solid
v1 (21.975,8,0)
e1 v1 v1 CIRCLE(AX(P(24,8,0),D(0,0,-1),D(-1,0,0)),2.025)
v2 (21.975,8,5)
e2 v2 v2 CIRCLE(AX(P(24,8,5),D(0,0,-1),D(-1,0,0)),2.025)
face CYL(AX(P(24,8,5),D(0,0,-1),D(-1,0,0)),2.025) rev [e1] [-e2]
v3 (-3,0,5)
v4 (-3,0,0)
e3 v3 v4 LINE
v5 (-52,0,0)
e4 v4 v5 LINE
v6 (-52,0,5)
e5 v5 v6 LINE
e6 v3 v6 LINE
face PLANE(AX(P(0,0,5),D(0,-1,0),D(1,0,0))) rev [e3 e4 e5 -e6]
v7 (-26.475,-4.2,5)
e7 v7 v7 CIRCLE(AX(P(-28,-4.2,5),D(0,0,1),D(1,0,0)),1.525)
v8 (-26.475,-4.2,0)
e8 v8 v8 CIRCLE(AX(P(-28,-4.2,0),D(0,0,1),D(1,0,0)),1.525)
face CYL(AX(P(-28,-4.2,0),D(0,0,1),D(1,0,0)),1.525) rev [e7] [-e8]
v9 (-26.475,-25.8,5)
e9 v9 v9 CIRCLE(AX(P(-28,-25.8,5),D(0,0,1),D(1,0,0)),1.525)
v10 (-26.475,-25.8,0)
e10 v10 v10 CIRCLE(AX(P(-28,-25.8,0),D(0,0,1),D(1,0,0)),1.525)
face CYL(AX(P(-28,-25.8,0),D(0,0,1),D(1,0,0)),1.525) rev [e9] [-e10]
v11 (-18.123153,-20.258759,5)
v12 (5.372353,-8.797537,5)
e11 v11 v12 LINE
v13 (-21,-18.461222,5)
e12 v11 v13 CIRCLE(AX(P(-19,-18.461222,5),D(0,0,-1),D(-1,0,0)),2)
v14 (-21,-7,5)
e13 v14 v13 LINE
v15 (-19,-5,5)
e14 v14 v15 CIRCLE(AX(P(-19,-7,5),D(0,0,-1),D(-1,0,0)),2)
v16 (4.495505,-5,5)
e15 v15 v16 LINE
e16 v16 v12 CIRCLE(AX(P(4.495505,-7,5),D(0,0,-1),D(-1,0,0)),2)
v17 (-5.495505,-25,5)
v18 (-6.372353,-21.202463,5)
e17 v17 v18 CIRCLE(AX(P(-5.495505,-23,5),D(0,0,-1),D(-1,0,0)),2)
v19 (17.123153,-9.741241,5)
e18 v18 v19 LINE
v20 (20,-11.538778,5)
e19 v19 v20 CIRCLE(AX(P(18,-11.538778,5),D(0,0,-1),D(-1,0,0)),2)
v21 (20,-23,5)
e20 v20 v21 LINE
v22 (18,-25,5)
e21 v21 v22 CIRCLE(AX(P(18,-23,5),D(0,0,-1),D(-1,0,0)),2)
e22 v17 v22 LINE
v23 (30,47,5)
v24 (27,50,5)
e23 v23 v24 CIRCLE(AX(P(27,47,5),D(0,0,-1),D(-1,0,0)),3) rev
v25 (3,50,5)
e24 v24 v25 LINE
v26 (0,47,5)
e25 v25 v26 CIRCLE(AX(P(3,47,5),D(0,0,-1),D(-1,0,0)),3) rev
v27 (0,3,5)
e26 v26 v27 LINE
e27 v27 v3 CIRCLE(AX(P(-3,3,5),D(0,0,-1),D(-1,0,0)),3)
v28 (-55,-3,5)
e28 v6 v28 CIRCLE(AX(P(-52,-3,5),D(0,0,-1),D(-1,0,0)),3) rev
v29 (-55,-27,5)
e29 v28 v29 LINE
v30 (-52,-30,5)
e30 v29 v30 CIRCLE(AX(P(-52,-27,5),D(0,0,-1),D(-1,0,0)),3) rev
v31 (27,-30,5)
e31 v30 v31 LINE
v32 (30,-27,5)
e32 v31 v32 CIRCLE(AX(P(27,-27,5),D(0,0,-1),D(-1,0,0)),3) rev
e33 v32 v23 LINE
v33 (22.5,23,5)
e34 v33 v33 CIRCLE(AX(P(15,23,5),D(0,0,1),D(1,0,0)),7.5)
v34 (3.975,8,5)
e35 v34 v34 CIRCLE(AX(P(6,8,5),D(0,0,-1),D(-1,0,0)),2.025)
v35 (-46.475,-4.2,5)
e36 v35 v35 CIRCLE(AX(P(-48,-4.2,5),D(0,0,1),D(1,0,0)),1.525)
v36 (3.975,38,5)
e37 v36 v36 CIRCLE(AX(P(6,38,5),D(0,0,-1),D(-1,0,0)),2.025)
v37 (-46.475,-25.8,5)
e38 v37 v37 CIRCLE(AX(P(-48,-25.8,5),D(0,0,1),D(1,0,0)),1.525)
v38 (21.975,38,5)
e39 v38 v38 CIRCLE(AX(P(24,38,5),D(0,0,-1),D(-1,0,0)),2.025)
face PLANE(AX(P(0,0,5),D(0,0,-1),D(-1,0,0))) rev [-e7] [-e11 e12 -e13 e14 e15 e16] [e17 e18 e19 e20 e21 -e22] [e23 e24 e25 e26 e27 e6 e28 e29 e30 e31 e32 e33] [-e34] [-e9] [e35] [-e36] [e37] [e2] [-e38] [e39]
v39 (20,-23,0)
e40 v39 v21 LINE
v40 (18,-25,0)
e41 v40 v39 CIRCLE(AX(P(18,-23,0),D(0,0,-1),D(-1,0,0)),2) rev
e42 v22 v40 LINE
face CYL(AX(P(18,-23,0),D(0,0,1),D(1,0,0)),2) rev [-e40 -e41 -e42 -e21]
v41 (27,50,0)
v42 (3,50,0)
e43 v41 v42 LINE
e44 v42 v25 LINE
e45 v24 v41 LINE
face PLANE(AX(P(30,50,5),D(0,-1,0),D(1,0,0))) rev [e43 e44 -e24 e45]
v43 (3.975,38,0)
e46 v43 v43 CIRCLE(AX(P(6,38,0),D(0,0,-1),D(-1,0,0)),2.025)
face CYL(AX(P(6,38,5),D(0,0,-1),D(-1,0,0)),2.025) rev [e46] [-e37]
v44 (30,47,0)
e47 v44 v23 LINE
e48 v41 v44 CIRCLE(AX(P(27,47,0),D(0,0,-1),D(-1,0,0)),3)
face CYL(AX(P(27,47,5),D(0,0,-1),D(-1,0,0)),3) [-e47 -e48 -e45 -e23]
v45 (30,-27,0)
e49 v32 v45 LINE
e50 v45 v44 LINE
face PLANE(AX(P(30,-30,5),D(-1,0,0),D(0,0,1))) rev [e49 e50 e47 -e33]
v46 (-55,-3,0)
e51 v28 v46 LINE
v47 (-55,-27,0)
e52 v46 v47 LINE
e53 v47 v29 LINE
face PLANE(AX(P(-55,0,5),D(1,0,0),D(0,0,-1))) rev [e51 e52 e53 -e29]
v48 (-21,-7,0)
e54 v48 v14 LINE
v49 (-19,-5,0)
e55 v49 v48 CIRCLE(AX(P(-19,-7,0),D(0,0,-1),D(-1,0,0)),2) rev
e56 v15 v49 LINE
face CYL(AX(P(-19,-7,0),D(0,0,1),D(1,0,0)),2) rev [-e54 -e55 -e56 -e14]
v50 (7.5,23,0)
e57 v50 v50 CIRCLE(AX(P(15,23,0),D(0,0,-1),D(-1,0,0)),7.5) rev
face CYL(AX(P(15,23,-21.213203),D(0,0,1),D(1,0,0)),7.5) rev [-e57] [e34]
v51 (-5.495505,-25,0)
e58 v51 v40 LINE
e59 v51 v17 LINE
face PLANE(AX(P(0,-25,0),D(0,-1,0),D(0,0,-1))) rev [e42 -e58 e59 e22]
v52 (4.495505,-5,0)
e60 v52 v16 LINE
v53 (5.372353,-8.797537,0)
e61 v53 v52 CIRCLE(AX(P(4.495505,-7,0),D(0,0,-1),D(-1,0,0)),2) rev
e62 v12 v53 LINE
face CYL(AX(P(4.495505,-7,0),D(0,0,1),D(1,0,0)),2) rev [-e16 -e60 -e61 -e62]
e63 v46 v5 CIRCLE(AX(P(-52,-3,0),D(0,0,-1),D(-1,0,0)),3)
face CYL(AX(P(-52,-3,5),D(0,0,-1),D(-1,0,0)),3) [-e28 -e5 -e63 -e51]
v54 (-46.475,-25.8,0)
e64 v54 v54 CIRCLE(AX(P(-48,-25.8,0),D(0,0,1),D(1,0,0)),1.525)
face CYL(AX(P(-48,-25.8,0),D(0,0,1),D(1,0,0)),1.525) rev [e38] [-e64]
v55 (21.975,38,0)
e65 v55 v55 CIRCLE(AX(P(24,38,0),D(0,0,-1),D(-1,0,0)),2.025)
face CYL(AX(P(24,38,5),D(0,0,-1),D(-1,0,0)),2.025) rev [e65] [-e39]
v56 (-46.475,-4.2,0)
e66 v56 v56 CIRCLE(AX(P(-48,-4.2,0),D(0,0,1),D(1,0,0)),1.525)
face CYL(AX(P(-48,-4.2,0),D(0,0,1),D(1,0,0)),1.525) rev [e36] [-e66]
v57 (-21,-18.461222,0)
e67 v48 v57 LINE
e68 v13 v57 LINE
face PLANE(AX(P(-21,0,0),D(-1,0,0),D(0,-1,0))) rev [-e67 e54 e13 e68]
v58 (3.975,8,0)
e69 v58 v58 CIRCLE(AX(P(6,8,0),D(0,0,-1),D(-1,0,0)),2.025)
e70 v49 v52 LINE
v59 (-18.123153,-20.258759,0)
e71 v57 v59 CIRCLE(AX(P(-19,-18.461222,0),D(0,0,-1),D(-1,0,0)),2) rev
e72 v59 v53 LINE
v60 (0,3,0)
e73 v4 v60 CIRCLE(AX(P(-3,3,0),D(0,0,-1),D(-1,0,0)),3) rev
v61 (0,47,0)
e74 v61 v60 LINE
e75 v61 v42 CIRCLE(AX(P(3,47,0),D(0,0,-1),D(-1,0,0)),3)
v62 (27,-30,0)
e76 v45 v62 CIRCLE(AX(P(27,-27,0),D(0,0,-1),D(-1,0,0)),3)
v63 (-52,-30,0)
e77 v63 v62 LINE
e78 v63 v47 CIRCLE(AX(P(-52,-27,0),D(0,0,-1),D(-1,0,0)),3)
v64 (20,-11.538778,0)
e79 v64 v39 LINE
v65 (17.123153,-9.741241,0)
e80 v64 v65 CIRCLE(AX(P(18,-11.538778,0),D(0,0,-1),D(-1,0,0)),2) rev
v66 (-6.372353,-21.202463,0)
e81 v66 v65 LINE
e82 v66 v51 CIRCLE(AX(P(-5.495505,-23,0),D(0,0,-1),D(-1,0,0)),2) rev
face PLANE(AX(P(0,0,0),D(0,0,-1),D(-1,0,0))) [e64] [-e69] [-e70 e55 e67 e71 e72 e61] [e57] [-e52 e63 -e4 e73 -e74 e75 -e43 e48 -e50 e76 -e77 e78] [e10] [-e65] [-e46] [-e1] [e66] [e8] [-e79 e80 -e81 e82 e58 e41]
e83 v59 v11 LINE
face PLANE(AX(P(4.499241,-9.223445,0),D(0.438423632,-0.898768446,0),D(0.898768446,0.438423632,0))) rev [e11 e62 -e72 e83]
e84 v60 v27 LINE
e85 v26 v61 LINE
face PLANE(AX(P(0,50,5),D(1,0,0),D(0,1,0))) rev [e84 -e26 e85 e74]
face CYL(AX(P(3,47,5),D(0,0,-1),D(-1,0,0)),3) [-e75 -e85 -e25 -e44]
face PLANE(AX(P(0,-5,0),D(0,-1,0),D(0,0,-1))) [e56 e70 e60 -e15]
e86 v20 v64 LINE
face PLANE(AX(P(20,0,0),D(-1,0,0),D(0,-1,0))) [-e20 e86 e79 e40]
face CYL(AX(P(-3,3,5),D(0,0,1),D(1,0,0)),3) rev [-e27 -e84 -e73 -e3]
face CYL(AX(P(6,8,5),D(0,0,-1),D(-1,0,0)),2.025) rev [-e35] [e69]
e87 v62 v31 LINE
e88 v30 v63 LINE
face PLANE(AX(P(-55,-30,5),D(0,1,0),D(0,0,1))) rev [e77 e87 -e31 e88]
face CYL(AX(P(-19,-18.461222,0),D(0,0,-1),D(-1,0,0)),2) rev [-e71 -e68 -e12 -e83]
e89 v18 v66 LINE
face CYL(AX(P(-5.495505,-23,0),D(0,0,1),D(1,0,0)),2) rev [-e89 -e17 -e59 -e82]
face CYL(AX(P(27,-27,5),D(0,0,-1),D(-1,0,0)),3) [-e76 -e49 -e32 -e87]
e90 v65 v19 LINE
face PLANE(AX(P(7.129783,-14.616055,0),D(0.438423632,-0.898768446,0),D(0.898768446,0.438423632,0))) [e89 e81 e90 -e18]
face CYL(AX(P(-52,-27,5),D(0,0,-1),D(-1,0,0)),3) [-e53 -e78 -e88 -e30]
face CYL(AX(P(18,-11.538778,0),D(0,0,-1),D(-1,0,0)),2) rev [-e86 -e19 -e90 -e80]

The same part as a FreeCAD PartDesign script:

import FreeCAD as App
import Part
import Sketcher
Q = App.Units.Quantity


def edges_at(feature, points):
    """Names of the edges that pass closest to the given points."""
    edges = feature.Shape.Edges
    near = lambda p: min(range(len(edges)), key=lambda i: edges[i].distToShape(Part.Vertex(*p))[0])
    return sorted({f"Edge{near(p) + 1}" for p in points})

doc = App.newDocument("Part")
params = doc.addObject("Spreadsheet::Sheet", "Params")
for row, (alias, value) in enumerate([
    ("sketch1_width", "55 mm"),
    ("sketch1_width2", "85 mm"),
    ("sketch1_height", "80 mm"),
    ("pad1_length", "5 mm"),
    ("sketch2_diameter", "4.05 mm"),
    ("fillet_radius", "3 mm"),
    ("sketch3_diameter", "3.05 mm"),
    ("fillet2_radius", "2 mm"),
    ("sketch5_diameter", "15 mm"),
    ("pocket4_length", "5 mm"),
], start=1):
    params.set(f"A{row}", alias)
    params.set(f"B{row}", "=" + value)
    params.setAlias(f"B{row}", alias)

body = doc.addObject("PartDesign::Body", "Body")

# Sketch on XY plane
sketch1 = body.newObject("Sketcher::SketchObject", "Sketch")
sketch1.AttachmentSupport = (doc.getObject("XY_Plane"), [""])
sketch1.MapMode = "FlatFace"
sketch1.addGeometry([
    Part.LineSegment(App.Vector(0, 0, 0), App.Vector(-55, 0, 0)),  # 0
    Part.LineSegment(App.Vector(-55, 0, 0), App.Vector(-55, -30, 0)),  # 1
    Part.LineSegment(App.Vector(-55, -30, 0), App.Vector(30, -30, 0)),  # 2
    Part.LineSegment(App.Vector(30, -30, 0), App.Vector(30, 50, 0)),  # 3
    Part.LineSegment(App.Vector(30, 50, 0), App.Vector(0, 50, 0)),  # 4
    Part.LineSegment(App.Vector(0, 50, 0), App.Vector(0, 0, 0)),  # 5
], False)
sketch1.addConstraint([
    Sketcher.Constraint("Coincident", 0, 2, 1, 1),
    Sketcher.Constraint("Coincident", 1, 2, 2, 1),
    Sketcher.Constraint("Coincident", 2, 2, 3, 1),
    Sketcher.Constraint("Coincident", 3, 2, 4, 1),
    Sketcher.Constraint("Coincident", 4, 2, 5, 1),
    Sketcher.Constraint("Coincident", 5, 2, 0, 1),
    Sketcher.Constraint("Horizontal", 0),
    Sketcher.Constraint("Vertical", 1),
    Sketcher.Constraint("Horizontal", 2),
    Sketcher.Constraint("Vertical", 3),
    Sketcher.Constraint("Horizontal", 4),
    Sketcher.Constraint("Vertical", 5),
    Sketcher.Constraint("Coincident", 5, 2, -1, 1),
    Sketcher.Constraint("Equal", 4, 1),
    Sketcher.Constraint("DistanceX", 0, 2, 0, 1, Q("55 mm")),
    Sketcher.Constraint("DistanceX", 2, 1, 2, 2, Q("85 mm")),
    Sketcher.Constraint("DistanceY", 3, 1, 3, 2, Q("80 mm")),
])
sketch1.setExpression("Constraints[14]", "Params.sketch1_width")
sketch1.setExpression("Constraints[15]", "Params.sketch1_width2")
sketch1.setExpression("Constraints[16]", "Params.sketch1_height")
pad1 = body.newObject("PartDesign::Pad", "Pad")
pad1.Profile = sketch1
pad1.setExpression("Length", "Params.pad1_length")

# Sketch on XY plane
sketch2 = body.newObject("Sketcher::SketchObject", "Sketch001")
sketch2.AttachmentSupport = (doc.getObject("XY_Plane"), [""])
sketch2.MapMode = "FlatFace"
sketch2.addGeometry([
    Part.Circle(App.Vector(24, 38, 0), App.Vector(0, 0, 1), 2),
    Part.Circle(App.Vector(6, 38, 0), App.Vector(0, 0, 1), 2),
    Part.Circle(App.Vector(24, 8, 0), App.Vector(0, 0, 1), 2),
    Part.Circle(App.Vector(6, 8, 0), App.Vector(0, 0, 1), 2),
], False)
sketch2.addConstraint([
    Sketcher.Constraint("Equal", 0, 1),
    Sketcher.Constraint("Equal", 1, 2),
    Sketcher.Constraint("Equal", 2, 3),
    Sketcher.Constraint("Horizontal", 0, 3, 1, 3),
    Sketcher.Constraint("Horizontal", 2, 3, 3, 3),
    Sketcher.Constraint("Vertical", 0, 3, 2, 3),
    Sketcher.Constraint("Vertical", 1, 3, 3, 3),
    Sketcher.Constraint("Diameter", 0, Q("4.05 mm")),
    Sketcher.Constraint("DistanceX", -1, 1, 0, 3, Q("24 mm")),
    Sketcher.Constraint("DistanceY", -1, 1, 0, 3, Q("38 mm")),
    Sketcher.Constraint("DistanceX", -1, 1, 1, 3, Q("6 mm")),
    Sketcher.Constraint("DistanceY", -1, 1, 2, 3, Q("8 mm")),
])
sketch2.setExpression("Constraints[7]", "Params.sketch2_diameter")
pocket1 = body.newObject("PartDesign::Pocket", "Pocket")
pocket1.Profile = sketch2
pocket1.Type = "ThroughAll"
pocket1.Midplane = True
doc.recompute()

fillet = body.newObject("PartDesign::Fillet", "Fillet")
fillet.Base = (pocket1, edges_at(pocket1, [
    (0, 50, 2.5),
    (30, 50, 2.5),
    (30, -30, 2.5),
    (-55, -30, 2.5),
    (-55, 0, 2.5),
    (0, 0, 2.5),
]))
fillet.setExpression("Radius", "Params.fillet_radius")

# Sketch on XY plane
sketch3 = body.newObject("Sketcher::SketchObject", "Sketch002")
sketch3.AttachmentSupport = (doc.getObject("XY_Plane"), [""])
sketch3.MapMode = "FlatFace"
sketch3.AttachmentOffset = App.Placement(App.Vector(0, 0, 5), App.Rotation())
sketch3.addGeometry([
    Part.Circle(App.Vector(-48, -25.8, 0), App.Vector(0, 0, 1), 1.5),
    Part.Circle(App.Vector(-48, -4.2, 0), App.Vector(0, 0, 1), 1.5),
    Part.Circle(App.Vector(-28, -4.2, 0), App.Vector(0, 0, 1), 1.5),
    Part.Circle(App.Vector(-28, -25.8, 0), App.Vector(0, 0, 1), 1.5),
], False)
sketch3.addConstraint([
    Sketcher.Constraint("Equal", 0, 1),
    Sketcher.Constraint("Equal", 1, 2),
    Sketcher.Constraint("Equal", 2, 3),
    Sketcher.Constraint("Horizontal", 1, 3, 2, 3),
    Sketcher.Constraint("Horizontal", 0, 3, 3, 3),
    Sketcher.Constraint("Vertical", 0, 3, 1, 3),
    Sketcher.Constraint("Vertical", 2, 3, 3, 3),
    Sketcher.Constraint("Diameter", 0, Q("3.05 mm")),
    Sketcher.Constraint("DistanceX", 0, 3, -1, 1, Q("48 mm")),
    Sketcher.Constraint("DistanceX", 2, 3, -1, 1, Q("28 mm")),
    Sketcher.Constraint("DistanceY", 0, 3, -1, 1, Q("25.8 mm")),
    Sketcher.Constraint("DistanceY", 1, 3, -1, 1, Q("4.2 mm")),
])
sketch3.setExpression("Constraints[7]", "Params.sketch3_diameter")
pocket2 = body.newObject("PartDesign::Pocket", "Pocket001")
pocket2.Profile = sketch3
pocket2.Type = "ThroughAll"
pocket2.Midplane = True

# Sketch on XY plane
sketch4 = body.newObject("Sketcher::SketchObject", "Sketch003")
sketch4.AttachmentSupport = (doc.getObject("XY_Plane"), [""])
sketch4.MapMode = "FlatFace"
sketch4.AttachmentOffset = App.Placement(App.Vector(0, 0, 5), App.Rotation())
sketch4.addGeometry([
    Part.LineSegment(App.Vector(13, -5, 0), App.Vector(-21, -5, 0)),  # 0
    Part.LineSegment(App.Vector(-21, -5, 0), App.Vector(-21, -22, 0)),  # 1
    Part.LineSegment(App.Vector(-21, -22, 0), App.Vector(13, -5, 0)),  # 2
    Part.LineSegment(App.Vector(20, -25, 0), App.Vector(20, -8, 0)),  # 3
    Part.LineSegment(App.Vector(20, -8, 0), App.Vector(-14, -25, 0)),  # 4
    Part.LineSegment(App.Vector(-14, -25, 0), App.Vector(20, -25, 0)),  # 5
], False)
sketch4.addConstraint([
    Sketcher.Constraint("Coincident", 0, 2, 1, 1),
    Sketcher.Constraint("Coincident", 1, 2, 2, 1),
    Sketcher.Constraint("Coincident", 2, 2, 0, 1),
    Sketcher.Constraint("Coincident", 3, 2, 4, 1),
    Sketcher.Constraint("Coincident", 4, 2, 5, 1),
    Sketcher.Constraint("Coincident", 5, 2, 3, 1),
    Sketcher.Constraint("Horizontal", 0),
    Sketcher.Constraint("Vertical", 1),
    Sketcher.Constraint("Vertical", 3),
    Sketcher.Constraint("Horizontal", 5),
    Sketcher.Constraint("Parallel", 2, 4),
    Sketcher.Constraint("Equal", 0, 5),
    Sketcher.Constraint("DistanceX", 0, 2, -1, 1, Q("21 mm")),
    Sketcher.Constraint("DistanceY", 0, 2, -1, 1, Q("5 mm")),
    Sketcher.Constraint("DistanceX", -1, 1, 3, 2, Q("20 mm")),
    Sketcher.Constraint("DistanceY", 4, 2, -1, 1, Q("25 mm")),
    Sketcher.Constraint("DistanceY", 1, 2, 1, 1, Q("16.662099 mm")),
    Sketcher.Constraint("DistanceX", 0, 2, 0, 1, Q("34.157303 mm")),
])
pocket3 = body.newObject("PartDesign::Pocket", "Pocket002")
pocket3.Profile = sketch4
pocket3.Type = "ThroughAll"
doc.recompute()

fillet2 = body.newObject("PartDesign::Fillet", "Fillet001")
fillet2.Base = (pocket3, edges_at(pocket3, [
    (-14.157, -25, 2.5),
    (20, -8.338, 2.5),
    (20, -25, 2.5),
    (-21, -21.662, 2.5),
    (-21, -5, 2.5),
    (13.157, -5, 2.5),
]))
fillet2.setExpression("Radius", "Params.fillet2_radius")

# Sketch on XY plane
sketch5 = body.newObject("Sketcher::SketchObject", "Sketch004")
sketch5.AttachmentSupport = (doc.getObject("XY_Plane"), [""])
sketch5.MapMode = "FlatFace"
sketch5.AttachmentOffset = App.Placement(App.Vector(0, 0, 5), App.Rotation())
sketch5.addGeometry(Part.Circle(App.Vector(15, 23, 0), App.Vector(0, 0, 1), 8), False)
sketch5.addConstraint([
    Sketcher.Constraint("Diameter", 0, Q("15 mm")),
    Sketcher.Constraint("DistanceX", -1, 1, 0, 3, Q("15 mm")),
    Sketcher.Constraint("DistanceY", -1, 1, 0, 3, Q("23 mm")),
])
sketch5.setExpression("Constraints[0]", "Params.sketch5_diameter")
pocket4 = body.newObject("PartDesign::Pocket", "Pocket003")
pocket4.Profile = sketch5
pocket4.setExpression("Length", "Params.pocket4_length")

doc.recompute()
